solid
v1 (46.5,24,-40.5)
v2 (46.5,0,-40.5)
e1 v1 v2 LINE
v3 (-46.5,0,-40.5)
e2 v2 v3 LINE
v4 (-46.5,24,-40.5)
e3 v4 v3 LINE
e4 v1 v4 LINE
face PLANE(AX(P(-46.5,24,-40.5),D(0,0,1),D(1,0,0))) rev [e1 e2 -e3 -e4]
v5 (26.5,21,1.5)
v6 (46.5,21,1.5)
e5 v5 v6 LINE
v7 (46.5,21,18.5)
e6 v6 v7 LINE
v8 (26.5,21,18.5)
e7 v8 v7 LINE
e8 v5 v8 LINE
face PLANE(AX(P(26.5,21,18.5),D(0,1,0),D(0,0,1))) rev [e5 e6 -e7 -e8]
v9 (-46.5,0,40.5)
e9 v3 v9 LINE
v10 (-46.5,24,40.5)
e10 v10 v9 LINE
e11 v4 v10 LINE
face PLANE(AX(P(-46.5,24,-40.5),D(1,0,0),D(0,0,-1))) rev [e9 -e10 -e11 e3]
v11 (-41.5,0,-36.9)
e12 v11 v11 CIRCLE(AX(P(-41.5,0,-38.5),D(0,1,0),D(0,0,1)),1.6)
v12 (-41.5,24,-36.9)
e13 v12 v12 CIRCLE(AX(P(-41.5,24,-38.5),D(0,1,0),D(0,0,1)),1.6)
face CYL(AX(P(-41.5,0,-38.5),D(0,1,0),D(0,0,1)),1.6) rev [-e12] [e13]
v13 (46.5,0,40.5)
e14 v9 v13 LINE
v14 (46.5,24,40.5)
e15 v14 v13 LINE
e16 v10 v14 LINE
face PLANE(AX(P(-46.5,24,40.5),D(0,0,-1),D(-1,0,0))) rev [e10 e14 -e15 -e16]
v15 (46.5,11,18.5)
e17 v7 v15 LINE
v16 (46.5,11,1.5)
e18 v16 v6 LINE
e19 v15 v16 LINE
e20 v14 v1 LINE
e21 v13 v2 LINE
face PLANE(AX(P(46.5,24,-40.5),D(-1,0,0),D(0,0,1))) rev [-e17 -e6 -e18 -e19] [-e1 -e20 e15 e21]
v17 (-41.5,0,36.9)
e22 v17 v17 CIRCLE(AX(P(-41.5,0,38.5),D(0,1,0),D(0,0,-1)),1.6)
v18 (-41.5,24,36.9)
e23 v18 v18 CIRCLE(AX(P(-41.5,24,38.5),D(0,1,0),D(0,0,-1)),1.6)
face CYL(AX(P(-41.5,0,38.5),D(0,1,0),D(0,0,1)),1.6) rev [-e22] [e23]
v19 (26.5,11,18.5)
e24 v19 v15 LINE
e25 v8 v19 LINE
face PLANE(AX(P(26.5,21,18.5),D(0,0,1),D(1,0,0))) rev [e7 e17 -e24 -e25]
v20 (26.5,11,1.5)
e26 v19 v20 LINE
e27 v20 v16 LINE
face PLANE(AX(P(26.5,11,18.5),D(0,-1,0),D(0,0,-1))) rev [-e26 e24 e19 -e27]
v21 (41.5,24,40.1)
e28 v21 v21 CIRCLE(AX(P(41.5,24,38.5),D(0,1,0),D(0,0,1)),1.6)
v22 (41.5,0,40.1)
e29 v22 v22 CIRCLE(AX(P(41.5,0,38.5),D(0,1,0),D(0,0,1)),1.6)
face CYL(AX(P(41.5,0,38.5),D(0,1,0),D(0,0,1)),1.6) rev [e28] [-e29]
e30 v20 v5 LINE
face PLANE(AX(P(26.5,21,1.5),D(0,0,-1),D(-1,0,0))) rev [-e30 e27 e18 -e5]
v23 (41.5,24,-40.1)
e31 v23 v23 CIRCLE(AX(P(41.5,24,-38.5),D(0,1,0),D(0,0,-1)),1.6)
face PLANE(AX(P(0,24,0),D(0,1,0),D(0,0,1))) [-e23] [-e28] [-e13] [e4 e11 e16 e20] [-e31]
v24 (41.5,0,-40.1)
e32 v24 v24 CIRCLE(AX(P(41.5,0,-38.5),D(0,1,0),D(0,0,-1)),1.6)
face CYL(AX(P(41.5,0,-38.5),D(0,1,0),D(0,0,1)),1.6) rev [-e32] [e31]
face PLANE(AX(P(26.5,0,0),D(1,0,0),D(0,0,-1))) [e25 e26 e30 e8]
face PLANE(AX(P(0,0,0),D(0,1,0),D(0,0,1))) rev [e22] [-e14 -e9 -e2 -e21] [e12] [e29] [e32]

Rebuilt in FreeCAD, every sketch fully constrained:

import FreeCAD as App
import Part
import Sketcher

V = App.Vector
Q = App.Units.Quantity


def add_polygon(sketch, points):
    """Adds a closed chain of lines whose ends are joined by coincident constraints."""
    first, n = sketch.GeometryCount, len(points)
    for a, b in zip(points, points[1:] + points[:1]):
        sketch.addGeometry(Part.LineSegment(App.Vector(*a, 0), App.Vector(*b, 0)), False)
    for i in range(n):
        sketch.addConstraint(Sketcher.Constraint("Coincident", first + i, 2, first + (i + 1) % n, 1))

doc = App.newDocument("Part")
body = doc.addObject("PartDesign::Body", "Body")

sketch1 = body.newObject("Sketcher::SketchObject", "Sketch")
sketch1.AttachmentSupport = (doc.getObject("XZ_Plane"), [""])
sketch1.MapMode = "FlatFace"
add_polygon(sketch1, [(-46.5, -40.5), (-46.5, 40.5), (46.5, 40.5), (46.5, -40.5)])
sketch1.addConstraint(Sketcher.Constraint("Vertical", 0))
sketch1.addConstraint(Sketcher.Constraint("Horizontal", 1))
sketch1.addConstraint(Sketcher.Constraint("Vertical", 2))
sketch1.addConstraint(Sketcher.Constraint("Horizontal", 3))
sketch1.addConstraint(Sketcher.Constraint("Symmetric", 0, 2, 2, 2, -1, 1))
sketch1.addConstraint(Sketcher.Constraint("DistanceX", 1, 1, 1, 2, Q("93 mm")))
sketch1.addConstraint(Sketcher.Constraint("DistanceY", 0, 1, 0, 2, Q("81 mm")))
pad1 = body.newObject("PartDesign::Pad", "Pad")
pad1.Profile = sketch1
pad1.Length = 24
pad1.Reversed = True

sketch2 = body.newObject("Sketcher::SketchObject", "Sketch001")
sketch2.AttachmentSupport = (doc.getObject("XZ_Plane"), [""])
sketch2.MapMode = "FlatFace"
sketch2.AttachmentOffset = App.Placement(V(0, 0, -24), App.Rotation())
sketch2.addGeometry(Part.Circle(V(-41.5, -38.5, 0), V(0, 0, 1), 1.6), False)
sketch2.addGeometry(Part.Circle(V(-41.5, 38.5, 0), V(0, 0, 1), 1.6), False)
sketch2.addGeometry(Part.Circle(V(41.5, 38.5, 0), V(0, 0, 1), 1.6), False)
sketch2.addGeometry(Part.Circle(V(41.5, -38.5, 0), V(0, 0, 1), 1.6), False)
sketch2.addConstraint(Sketcher.Constraint("Equal", 0, 1))
sketch2.addConstraint(Sketcher.Constraint("Equal", 1, 2))
sketch2.addConstraint(Sketcher.Constraint("Equal", 2, 3))
sketch2.addConstraint(Sketcher.Constraint("Symmetric", 0, 3, 2, 3, -1, 1))
sketch2.addConstraint(Sketcher.Constraint("Symmetric", 1, 3, 3, 3, -1, 1))
sketch2.addConstraint(Sketcher.Constraint("Symmetric", 1, 3, 2, 3, -2))
sketch2.addConstraint(Sketcher.Constraint("Diameter", 0, Q("3.2 mm")))
sketch2.addConstraint(Sketcher.Constraint("DistanceY", 0, 3, 1, 3, Q("77 mm")))
sketch2.addConstraint(Sketcher.Constraint("DistanceX", 1, 3, 2, 3, Q("83 mm")))
pocket1 = body.newObject("PartDesign::Pocket", "Pocket")
pocket1.Profile = sketch2
pocket1.Length = 24
pocket1.Reversed = True

sketch3 = body.newObject("Sketcher::SketchObject", "Sketch002")
sketch3.AttachmentSupport = (doc.getObject("YZ_Plane"), [""])
sketch3.MapMode = "FlatFace"
sketch3.AttachmentOffset = App.Placement(V(0, 0, 46.5), App.Rotation())
add_polygon(sketch3, [(21, 18.5), (11, 18.5), (11, 1.5), (21, 1.5)])
sketch3.addConstraint(Sketcher.Constraint("Horizontal", 0))
sketch3.addConstraint(Sketcher.Constraint("Vertical", 1))
sketch3.addConstraint(Sketcher.Constraint("Horizontal", 2))
sketch3.addConstraint(Sketcher.Constraint("Vertical", 3))
sketch3.addConstraint(Sketcher.Constraint("DistanceX", 0, 2, 0, 1, Q("10 mm")))
sketch3.addConstraint(Sketcher.Constraint("DistanceY", 1, 2, 1, 1, Q("17 mm")))
sketch3.addConstraint(Sketcher.Constraint("DistanceX", -1, 1, 0, 2, Q("11 mm")))
sketch3.addConstraint(Sketcher.Constraint("DistanceY", -1, 1, 0, 2, Q("18.5 mm")))
pocket2 = body.newObject("PartDesign::Pocket", "Pocket001")
pocket2.Profile = sketch3
pocket2.Length = 20

doc.recompute()
